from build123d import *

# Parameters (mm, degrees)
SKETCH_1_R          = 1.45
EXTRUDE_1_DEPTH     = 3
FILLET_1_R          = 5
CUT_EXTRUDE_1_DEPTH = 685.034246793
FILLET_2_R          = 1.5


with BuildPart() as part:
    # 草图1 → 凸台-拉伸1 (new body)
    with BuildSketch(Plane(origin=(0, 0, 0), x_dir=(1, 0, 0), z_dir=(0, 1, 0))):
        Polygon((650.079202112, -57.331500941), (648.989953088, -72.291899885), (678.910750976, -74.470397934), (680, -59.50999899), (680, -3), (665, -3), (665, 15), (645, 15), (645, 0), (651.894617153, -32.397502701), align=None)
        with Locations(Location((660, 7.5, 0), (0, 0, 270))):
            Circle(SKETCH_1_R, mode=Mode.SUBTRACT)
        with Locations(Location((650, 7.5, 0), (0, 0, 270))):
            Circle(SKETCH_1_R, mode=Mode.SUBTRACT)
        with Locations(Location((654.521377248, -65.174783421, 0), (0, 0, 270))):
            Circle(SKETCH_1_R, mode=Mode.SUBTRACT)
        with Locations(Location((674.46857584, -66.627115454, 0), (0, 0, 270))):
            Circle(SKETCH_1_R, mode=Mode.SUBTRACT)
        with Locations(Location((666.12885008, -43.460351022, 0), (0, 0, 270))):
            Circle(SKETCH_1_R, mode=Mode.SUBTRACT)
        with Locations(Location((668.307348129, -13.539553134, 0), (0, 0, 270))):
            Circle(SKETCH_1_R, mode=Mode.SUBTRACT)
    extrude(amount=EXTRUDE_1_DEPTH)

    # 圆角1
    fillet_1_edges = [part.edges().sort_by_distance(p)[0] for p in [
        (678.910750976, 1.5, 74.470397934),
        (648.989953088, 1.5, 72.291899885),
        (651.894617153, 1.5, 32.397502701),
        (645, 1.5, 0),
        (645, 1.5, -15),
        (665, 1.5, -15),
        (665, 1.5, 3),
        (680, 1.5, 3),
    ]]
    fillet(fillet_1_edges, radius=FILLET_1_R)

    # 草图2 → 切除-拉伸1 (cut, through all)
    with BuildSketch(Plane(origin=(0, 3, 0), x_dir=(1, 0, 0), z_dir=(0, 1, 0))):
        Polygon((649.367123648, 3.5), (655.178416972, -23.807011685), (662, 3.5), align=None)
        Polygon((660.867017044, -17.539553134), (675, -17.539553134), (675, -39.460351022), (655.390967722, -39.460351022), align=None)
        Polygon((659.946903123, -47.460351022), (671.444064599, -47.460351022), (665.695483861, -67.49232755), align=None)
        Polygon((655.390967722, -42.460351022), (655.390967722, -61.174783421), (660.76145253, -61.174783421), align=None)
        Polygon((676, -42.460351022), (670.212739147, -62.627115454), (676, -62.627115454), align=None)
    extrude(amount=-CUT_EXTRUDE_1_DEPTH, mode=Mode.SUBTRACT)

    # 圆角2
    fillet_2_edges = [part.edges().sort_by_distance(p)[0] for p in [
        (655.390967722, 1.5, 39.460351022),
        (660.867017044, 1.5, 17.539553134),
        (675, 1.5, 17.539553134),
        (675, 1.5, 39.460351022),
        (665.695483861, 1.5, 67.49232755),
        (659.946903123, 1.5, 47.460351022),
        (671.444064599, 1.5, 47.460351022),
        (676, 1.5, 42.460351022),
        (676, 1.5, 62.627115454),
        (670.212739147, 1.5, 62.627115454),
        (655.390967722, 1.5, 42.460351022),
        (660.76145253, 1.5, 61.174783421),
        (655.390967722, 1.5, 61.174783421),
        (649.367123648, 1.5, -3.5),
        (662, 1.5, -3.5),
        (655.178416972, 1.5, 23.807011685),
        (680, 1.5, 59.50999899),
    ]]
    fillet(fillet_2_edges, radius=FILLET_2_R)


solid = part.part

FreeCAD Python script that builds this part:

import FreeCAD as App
import Part
import Sketcher


def edges_at(feature, points):
    """Names of the edges that pass closest to the given points."""
    edges = feature.Shape.Edges
    near = lambda p: min(range(len(edges)), key=lambda i: edges[i].distToShape(Part.Vertex(*p))[0])
    return sorted({f"Edge{near(p) + 1}" for p in points})

doc = App.newDocument("Part")
body = doc.addObject("PartDesign::Body", "Body")

sketch1 = body.newObject("Sketcher::SketchObject", "Sketch")
sketch1.AttachmentSupport = (doc.getObject("XZ_Plane"), [""])
sketch1.MapMode = "FlatFace"
sketch1.addGeometry(Part.LineSegment(App.Vector(650.1, 57.3, 0), App.Vector(649, 72.3, 0)), False)
sketch1.addGeometry(Part.LineSegment(App.Vector(649, 72.3, 0), App.Vector(678.9, 74.5, 0)), False)
sketch1.addGeometry(Part.LineSegment(App.Vector(678.9, 74.5, 0), App.Vector(680, 59.5, 0)), False)
sketch1.addGeometry(Part.LineSegment(App.Vector(680, 59.5, 0), App.Vector(680, 3, 0)), False)
sketch1.addGeometry(Part.LineSegment(App.Vector(680, 3, 0), App.Vector(665, 3, 0)), False)
sketch1.addGeometry(Part.LineSegment(App.Vector(665, 3, 0), App.Vector(665, -15, 0)), False)
sketch1.addGeometry(Part.LineSegment(App.Vector(665, -15, 0), App.Vector(645, -15, 0)), False)
sketch1.addGeometry(Part.LineSegment(App.Vector(645, -15, 0), App.Vector(645, 0, 0)), False)
sketch1.addGeometry(Part.LineSegment(App.Vector(645, 0, 0), App.Vector(651.9, 32.4, 0)), False)
sketch1.addGeometry(Part.LineSegment(App.Vector(651.9, 32.4, 0), App.Vector(650.1, 57.3, 0)), False)
sketch1.addGeometry(Part.Circle(App.Vector(654.5, 65.2, 0), App.Vector(0, 0, 1), 1.4), False)
sketch1.addGeometry(Part.Circle(App.Vector(674.5, 66.6, 0), App.Vector(0, 0, 1), 1.4), False)
sketch1.addGeometry(Part.Circle(App.Vector(666.1, 43.5, 0), App.Vector(0, 0, 1), 1.4), False)
sketch1.addGeometry(Part.Circle(App.Vector(650, -7.5, 0), App.Vector(0, 0, 1), 1.4), False)
sketch1.addGeometry(Part.Circle(App.Vector(660, -7.5, 0), App.Vector(0, 0, 1), 1.4), False)
sketch1.addGeometry(Part.Circle(App.Vector(668.3, 13.5, 0), App.Vector(0, 0, 1), 1.4), False)
sketch1.addConstraint(Sketcher.Constraint("Coincident", 0, 2, 1, 1))
sketch1.addConstraint(Sketcher.Constraint("Coincident", 1, 2, 2, 1))
sketch1.addConstraint(Sketcher.Constraint("Coincident", 2, 2, 3, 1))
sketch1.addConstraint(Sketcher.Constraint("Coincident", 3, 2, 4, 1))
sketch1.addConstraint(Sketcher.Constraint("Coincident", 4, 2, 5, 1))
sketch1.addConstraint(Sketcher.Constraint("Coincident", 5, 2, 6, 1))
sketch1.addConstraint(Sketcher.Constraint("Coincident", 6, 2, 7, 1))
sketch1.addConstraint(Sketcher.Constraint("Coincident", 7, 2, 8, 1))
sketch1.addConstraint(Sketcher.Constraint("Coincident", 8, 2, 9, 1))
sketch1.addConstraint(Sketcher.Constraint("Coincident", 9, 2, 0, 1))
sketch1.addConstraint(Sketcher.Constraint("Vertical", 3))
sketch1.addConstraint(Sketcher.Constraint("Horizontal", 4))
sketch1.addConstraint(Sketcher.Constraint("Vertical", 5))
sketch1.addConstraint(Sketcher.Constraint("Horizontal", 6))
sketch1.addConstraint(Sketcher.Constraint("Vertical", 7))
sketch1.addConstraint(Sketcher.Constraint("Equal", 10, 11))
sketch1.addConstraint(Sketcher.Constraint("Equal", 11, 12))
sketch1.addConstraint(Sketcher.Constraint("Equal", 12, 13))
sketch1.addConstraint(Sketcher.Constraint("Equal", 13, 14))
sketch1.addConstraint(Sketcher.Constraint("Equal", 14, 15))
sketch1.addConstraint(Sketcher.Constraint("PointOnObject", 7, 2, -1))
sketch1.addConstraint(Sketcher.Constraint("Perpendicular", 0, 1))
sketch1.addConstraint(Sketcher.Constraint("Perpendicular", 1, 2))
sketch1.addConstraint(Sketcher.Constraint("Parallel", 2, 9))
sketch1.addConstraint(Sketcher.Constraint("Horizontal", 13, 3, 14, 3))
sketch1.addConstraint(Sketcher.Constraint("Equal", 4, 7))
sketch1.addConstraint(Sketcher.Constraint("Equal", 0, 2))
sketch1.addConstraint(Sketcher.Constraint("Diameter", 10, 2.9))
sketch1.addConstraint(Sketcher.Constraint("DistanceX", 4, 2, 4, 1, 15.0))
sketch1.addConstraint(Sketcher.Constraint("DistanceX", 6, 2, 6, 1, 20.0))
sketch1.addConstraint(Sketcher.Constraint("DistanceY", 5, 2, 5, 1, 18.0))
sketch1.addConstraint(Sketcher.Constraint("Distance", 0, 15.0))
sketch1.addConstraint(Sketcher.Constraint("Distance", 1, 30.0))
sketch1.addConstraint(Sketcher.Constraint("Distance", 9, 25.0))
sketch1.addConstraint(Sketcher.Constraint("DistanceX", -1, 1, 13, 3, 650.0))
sketch1.addConstraint(Sketcher.Constraint("DistanceX", -1, 1, 14, 3, 660.0))
sketch1.addConstraint(Sketcher.Constraint("DistanceX", -1, 1, 2, 2, 680.0))
sketch1.addConstraint(Sketcher.Constraint("DistanceY", 3, 2, 3, 1, 56.509999))
sketch1.addConstraint(Sketcher.Constraint("DistanceY", 13, 3, -1, 1, 7.5))
sketch1.addConstraint(Sketcher.Constraint("DistanceY", 8, 2, 9, 2, 24.933998))
sketch1.addConstraint(Sketcher.Constraint("DistanceX", 10, 3, 11, 3, 19.947199))
sketch1.addConstraint(Sketcher.Constraint("DistanceX", 12, 3, 15, 3, 2.178498))
sketch1.addConstraint(Sketcher.Constraint("DistanceX", 12, 3, 1, 2, 12.781901))
sketch1.addConstraint(Sketcher.Constraint("DistanceY", -1, 1, 12, 3, 43.460351))
sketch1.addConstraint(Sketcher.Constraint("DistanceX", 10, 3, 15, 3, 13.785971))
sketch1.addConstraint(Sketcher.Constraint("DistanceY", 15, 3, 10, 3, 51.63523))
sketch1.addConstraint(Sketcher.Constraint("DistanceY", 15, 3, 8, 2, 18.85795))
sketch1.addConstraint(Sketcher.Constraint("DistanceY", -1, 1, 11, 3, 66.627115))
pad1 = body.newObject("PartDesign::Pad", "Pad")
pad1.Profile = sketch1
pad1.Length = 3
pad1.Reversed = True
doc.recompute()

fillet = body.newObject("PartDesign::Fillet", "Fillet")
fillet.Base = (pad1, edges_at(pad1, [
    (678.911, 1.5, 74.47),
    (648.99, 1.5, 72.292),
    (651.895, 1.5, 32.398),
    (645, 1.5, 0),
    (645, 1.5, -15),
    (665, 1.5, -15),
    (665, 1.5, 3),
    (680, 1.5, 3),
]))
fillet.Radius = 5

sketch2 = body.newObject("Sketcher::SketchObject", "Sketch001")
sketch2.AttachmentSupport = (doc.getObject("XZ_Plane"), [""])
sketch2.MapMode = "FlatFace"
sketch2.AttachmentOffset = App.Placement(App.Vector(0, 0, -3), App.Rotation())
sketch2.addGeometry(Part.LineSegment(App.Vector(649, -4, 0), App.Vector(655, 24, 0)), False)
sketch2.addGeometry(Part.LineSegment(App.Vector(655, 24, 0), App.Vector(662, -4, 0)), False)
sketch2.addGeometry(Part.LineSegment(App.Vector(662, -4, 0), App.Vector(649, -4, 0)), False)
sketch2.addGeometry(Part.LineSegment(App.Vector(675, 18, 0), App.Vector(661, 18, 0)), False)
sketch2.addGeometry(Part.LineSegment(App.Vector(661, 18, 0), App.Vector(655, 39, 0)), False)
sketch2.addGeometry(Part.LineSegment(App.Vector(655, 39, 0), App.Vector(675, 39, 0)), False)
sketch2.addGeometry(Part.LineSegment(App.Vector(675, 39, 0), App.Vector(675, 18, 0)), False)
sketch2.addGeometry(Part.LineSegment(App.Vector(671, 47, 0), App.Vector(660, 47, 0)), False)
sketch2.addGeometry(Part.LineSegment(App.Vector(660, 47, 0), App.Vector(666, 67, 0)), False)
sketch2.addGeometry(Part.LineSegment(App.Vector(666, 67, 0), App.Vector(671, 47, 0)), False)
sketch2.addGeometry(Part.LineSegment(App.Vector(655, 42, 0), App.Vector(655, 61, 0)), False)
sketch2.addGeometry(Part.LineSegment(App.Vector(655, 61, 0), App.Vector(661, 61, 0)), False)
sketch2.addGeometry(Part.LineSegment(App.Vector(661, 61, 0), App.Vector(655, 42, 0)), False)
sketch2.addGeometry(Part.LineSegment(App.Vector(676, 42, 0), App.Vector(670, 63, 0)), False)
sketch2.addGeometry(Part.LineSegment(App.Vector(670, 63, 0), App.Vector(676, 63, 0)), False)
sketch2.addGeometry(Part.LineSegment(App.Vector(676, 63, 0), App.Vector(676, 42, 0)), False)
sketch2.addConstraint(Sketcher.Constraint("Coincident", 0, 2, 1, 1))
sketch2.addConstraint(Sketcher.Constraint("Coincident", 1, 2, 2, 1))
sketch2.addConstraint(Sketcher.Constraint("Coincident", 2, 2, 0, 1))
sketch2.addConstraint(Sketcher.Constraint("Coincident", 3, 2, 4, 1))
sketch2.addConstraint(Sketcher.Constraint("Coincident", 4, 2, 5, 1))
sketch2.addConstraint(Sketcher.Constraint("Coincident", 5, 2, 6, 1))
sketch2.addConstraint(Sketcher.Constraint("Coincident", 6, 2, 3, 1))
sketch2.addConstraint(Sketcher.Constraint("Coincident", 7, 2, 8, 1))
sketch2.addConstraint(Sketcher.Constraint("Coincident", 8, 2, 9, 1))
sketch2.addConstraint(Sketcher.Constraint("Coincident", 9, 2, 7, 1))
sketch2.addConstraint(Sketcher.Constraint("Coincident", 10, 2, 11, 1))
sketch2.addConstraint(Sketcher.Constraint("Coincident", 11, 2, 12, 1))
sketch2.addConstraint(Sketcher.Constraint("Coincident", 12, 2, 10, 1))
sketch2.addConstraint(Sketcher.Constraint("Coincident", 13, 2, 14, 1))
sketch2.addConstraint(Sketcher.Constraint("Coincident", 14, 2, 15, 1))
sketch2.addConstraint(Sketcher.Constraint("Coincident", 15, 2, 13, 1))
sketch2.addConstraint(Sketcher.Constraint("Horizontal", 2))
sketch2.addConstraint(Sketcher.Constraint("Horizontal", 3))
sketch2.addConstraint(Sketcher.Constraint("Horizontal", 5))
sketch2.addConstraint(Sketcher.Constraint("Vertical", 6))
sketch2.addConstraint(Sketcher.Constraint("Horizontal", 7))
sketch2.addConstraint(Sketcher.Constraint("Vertical", 10))
sketch2.addConstraint(Sketcher.Constraint("Horizontal", 11))
sketch2.addConstraint(Sketcher.Constraint("Horizontal", 14))
sketch2.addConstraint(Sketcher.Constraint("Vertical", 15))
sketch2.addConstraint(Sketcher.Constraint("Parallel", 1, 4))
sketch2.addConstraint(Sketcher.Constraint("Parallel", 8, 12))
sketch2.addConstraint(Sketcher.Constraint("Parallel", 9, 13))
sketch2.addConstraint(Sketcher.Constraint("Horizontal", 12, 2, 15, 2))
sketch2.addConstraint(Sketcher.Constraint("Vertical", 4, 2, 10, 2))
sketch2.addConstraint(Sketcher.Constraint("Equal", 8, 9))
sketch2.addConstraint(Sketcher.Constraint("DistanceX", -1, 1, 1, 2, 662.0))
sketch2.addConstraint(Sketcher.Constraint("DistanceX", -1, 1, 5, 2, 675.0))
sketch2.addConstraint(Sketcher.Constraint("DistanceX", -1, 1, 14, 2, 676.0))
sketch2.addConstraint(Sketcher.Constraint("DistanceY", 4, 2, 7, 2, 8.0))
sketch2.addConstraint(Sketcher.Constraint("DistanceY", 4, 2, 12, 2, 3.0))
sketch2.addConstraint(Sketcher.Constraint("DistanceY", 1, 2, -1, 1, 3.5))
sketch2.addConstraint(Sketcher.Constraint("DistanceX", 7, 2, 7, 1, 11.497161))
sketch2.addConstraint(Sketcher.Constraint("DistanceX", 14, 1, 14, 2, 5.787261))
sketch2.addConstraint(Sketcher.Constraint("DistanceX", 0, 2, 3, 2, 5.6886))
sketch2.addConstraint(Sketcher.Constraint("Distance", 1, 28.14617))
sketch2.addConstraint(Sketcher.Constraint("DistanceX", 2, 2, 2, 1, 12.632876))
sketch2.addConstraint(Sketcher.Constraint("DistanceX", 3, 2, 3, 1, 14.132983))
sketch2.addConstraint(Sketcher.Constraint("DistanceX", 5, 1, 5, 2, 19.609032))
sketch2.addConstraint(Sketcher.Constraint("DistanceX", 11, 1, 11, 2, 5.370485))
sketch2.addConstraint(Sketcher.Constraint("DistanceY", 10, 1, 10, 2, 18.714432))
sketch2.addConstraint(Sketcher.Constraint("DistanceY", -1, 1, 4, 2, 39.460351))
sketch2.addConstraint(Sketcher.Constraint("DistanceX", 11, 2, 8, 2, 4.934031))
pocket1 = body.newObject("PartDesign::Pocket", "Pocket")
pocket1.Profile = sketch2
pocket1.Type = "ThroughAll"
pocket1.Reversed = True
doc.recompute()

fillet2 = body.newObject("PartDesign::Fillet", "Fillet001")
fillet2.Base = (pocket1, edges_at(pocket1, [
    (655.391, 1.5, 39.46),
    (660.867, 1.5, 17.54),
    (675, 1.5, 17.54),
    (675, 1.5, 39.46),
    (665.695, 1.5, 67.492),
    (659.947, 1.5, 47.46),
    (671.444, 1.5, 47.46),
    (676, 1.5, 42.46),
    (676, 1.5, 62.627),
    (670.213, 1.5, 62.627),
    (655.391, 1.5, 42.46),
    (660.761, 1.5, 61.175),
    (655.391, 1.5, 61.175),
    (649.367, 1.5, -3.5),
    (662, 1.5, -3.5),
    (655.178, 1.5, 23.807),
    (680, 1.5, 59.51),
]))
fillet2.Radius = 1.5

doc.recompute()
